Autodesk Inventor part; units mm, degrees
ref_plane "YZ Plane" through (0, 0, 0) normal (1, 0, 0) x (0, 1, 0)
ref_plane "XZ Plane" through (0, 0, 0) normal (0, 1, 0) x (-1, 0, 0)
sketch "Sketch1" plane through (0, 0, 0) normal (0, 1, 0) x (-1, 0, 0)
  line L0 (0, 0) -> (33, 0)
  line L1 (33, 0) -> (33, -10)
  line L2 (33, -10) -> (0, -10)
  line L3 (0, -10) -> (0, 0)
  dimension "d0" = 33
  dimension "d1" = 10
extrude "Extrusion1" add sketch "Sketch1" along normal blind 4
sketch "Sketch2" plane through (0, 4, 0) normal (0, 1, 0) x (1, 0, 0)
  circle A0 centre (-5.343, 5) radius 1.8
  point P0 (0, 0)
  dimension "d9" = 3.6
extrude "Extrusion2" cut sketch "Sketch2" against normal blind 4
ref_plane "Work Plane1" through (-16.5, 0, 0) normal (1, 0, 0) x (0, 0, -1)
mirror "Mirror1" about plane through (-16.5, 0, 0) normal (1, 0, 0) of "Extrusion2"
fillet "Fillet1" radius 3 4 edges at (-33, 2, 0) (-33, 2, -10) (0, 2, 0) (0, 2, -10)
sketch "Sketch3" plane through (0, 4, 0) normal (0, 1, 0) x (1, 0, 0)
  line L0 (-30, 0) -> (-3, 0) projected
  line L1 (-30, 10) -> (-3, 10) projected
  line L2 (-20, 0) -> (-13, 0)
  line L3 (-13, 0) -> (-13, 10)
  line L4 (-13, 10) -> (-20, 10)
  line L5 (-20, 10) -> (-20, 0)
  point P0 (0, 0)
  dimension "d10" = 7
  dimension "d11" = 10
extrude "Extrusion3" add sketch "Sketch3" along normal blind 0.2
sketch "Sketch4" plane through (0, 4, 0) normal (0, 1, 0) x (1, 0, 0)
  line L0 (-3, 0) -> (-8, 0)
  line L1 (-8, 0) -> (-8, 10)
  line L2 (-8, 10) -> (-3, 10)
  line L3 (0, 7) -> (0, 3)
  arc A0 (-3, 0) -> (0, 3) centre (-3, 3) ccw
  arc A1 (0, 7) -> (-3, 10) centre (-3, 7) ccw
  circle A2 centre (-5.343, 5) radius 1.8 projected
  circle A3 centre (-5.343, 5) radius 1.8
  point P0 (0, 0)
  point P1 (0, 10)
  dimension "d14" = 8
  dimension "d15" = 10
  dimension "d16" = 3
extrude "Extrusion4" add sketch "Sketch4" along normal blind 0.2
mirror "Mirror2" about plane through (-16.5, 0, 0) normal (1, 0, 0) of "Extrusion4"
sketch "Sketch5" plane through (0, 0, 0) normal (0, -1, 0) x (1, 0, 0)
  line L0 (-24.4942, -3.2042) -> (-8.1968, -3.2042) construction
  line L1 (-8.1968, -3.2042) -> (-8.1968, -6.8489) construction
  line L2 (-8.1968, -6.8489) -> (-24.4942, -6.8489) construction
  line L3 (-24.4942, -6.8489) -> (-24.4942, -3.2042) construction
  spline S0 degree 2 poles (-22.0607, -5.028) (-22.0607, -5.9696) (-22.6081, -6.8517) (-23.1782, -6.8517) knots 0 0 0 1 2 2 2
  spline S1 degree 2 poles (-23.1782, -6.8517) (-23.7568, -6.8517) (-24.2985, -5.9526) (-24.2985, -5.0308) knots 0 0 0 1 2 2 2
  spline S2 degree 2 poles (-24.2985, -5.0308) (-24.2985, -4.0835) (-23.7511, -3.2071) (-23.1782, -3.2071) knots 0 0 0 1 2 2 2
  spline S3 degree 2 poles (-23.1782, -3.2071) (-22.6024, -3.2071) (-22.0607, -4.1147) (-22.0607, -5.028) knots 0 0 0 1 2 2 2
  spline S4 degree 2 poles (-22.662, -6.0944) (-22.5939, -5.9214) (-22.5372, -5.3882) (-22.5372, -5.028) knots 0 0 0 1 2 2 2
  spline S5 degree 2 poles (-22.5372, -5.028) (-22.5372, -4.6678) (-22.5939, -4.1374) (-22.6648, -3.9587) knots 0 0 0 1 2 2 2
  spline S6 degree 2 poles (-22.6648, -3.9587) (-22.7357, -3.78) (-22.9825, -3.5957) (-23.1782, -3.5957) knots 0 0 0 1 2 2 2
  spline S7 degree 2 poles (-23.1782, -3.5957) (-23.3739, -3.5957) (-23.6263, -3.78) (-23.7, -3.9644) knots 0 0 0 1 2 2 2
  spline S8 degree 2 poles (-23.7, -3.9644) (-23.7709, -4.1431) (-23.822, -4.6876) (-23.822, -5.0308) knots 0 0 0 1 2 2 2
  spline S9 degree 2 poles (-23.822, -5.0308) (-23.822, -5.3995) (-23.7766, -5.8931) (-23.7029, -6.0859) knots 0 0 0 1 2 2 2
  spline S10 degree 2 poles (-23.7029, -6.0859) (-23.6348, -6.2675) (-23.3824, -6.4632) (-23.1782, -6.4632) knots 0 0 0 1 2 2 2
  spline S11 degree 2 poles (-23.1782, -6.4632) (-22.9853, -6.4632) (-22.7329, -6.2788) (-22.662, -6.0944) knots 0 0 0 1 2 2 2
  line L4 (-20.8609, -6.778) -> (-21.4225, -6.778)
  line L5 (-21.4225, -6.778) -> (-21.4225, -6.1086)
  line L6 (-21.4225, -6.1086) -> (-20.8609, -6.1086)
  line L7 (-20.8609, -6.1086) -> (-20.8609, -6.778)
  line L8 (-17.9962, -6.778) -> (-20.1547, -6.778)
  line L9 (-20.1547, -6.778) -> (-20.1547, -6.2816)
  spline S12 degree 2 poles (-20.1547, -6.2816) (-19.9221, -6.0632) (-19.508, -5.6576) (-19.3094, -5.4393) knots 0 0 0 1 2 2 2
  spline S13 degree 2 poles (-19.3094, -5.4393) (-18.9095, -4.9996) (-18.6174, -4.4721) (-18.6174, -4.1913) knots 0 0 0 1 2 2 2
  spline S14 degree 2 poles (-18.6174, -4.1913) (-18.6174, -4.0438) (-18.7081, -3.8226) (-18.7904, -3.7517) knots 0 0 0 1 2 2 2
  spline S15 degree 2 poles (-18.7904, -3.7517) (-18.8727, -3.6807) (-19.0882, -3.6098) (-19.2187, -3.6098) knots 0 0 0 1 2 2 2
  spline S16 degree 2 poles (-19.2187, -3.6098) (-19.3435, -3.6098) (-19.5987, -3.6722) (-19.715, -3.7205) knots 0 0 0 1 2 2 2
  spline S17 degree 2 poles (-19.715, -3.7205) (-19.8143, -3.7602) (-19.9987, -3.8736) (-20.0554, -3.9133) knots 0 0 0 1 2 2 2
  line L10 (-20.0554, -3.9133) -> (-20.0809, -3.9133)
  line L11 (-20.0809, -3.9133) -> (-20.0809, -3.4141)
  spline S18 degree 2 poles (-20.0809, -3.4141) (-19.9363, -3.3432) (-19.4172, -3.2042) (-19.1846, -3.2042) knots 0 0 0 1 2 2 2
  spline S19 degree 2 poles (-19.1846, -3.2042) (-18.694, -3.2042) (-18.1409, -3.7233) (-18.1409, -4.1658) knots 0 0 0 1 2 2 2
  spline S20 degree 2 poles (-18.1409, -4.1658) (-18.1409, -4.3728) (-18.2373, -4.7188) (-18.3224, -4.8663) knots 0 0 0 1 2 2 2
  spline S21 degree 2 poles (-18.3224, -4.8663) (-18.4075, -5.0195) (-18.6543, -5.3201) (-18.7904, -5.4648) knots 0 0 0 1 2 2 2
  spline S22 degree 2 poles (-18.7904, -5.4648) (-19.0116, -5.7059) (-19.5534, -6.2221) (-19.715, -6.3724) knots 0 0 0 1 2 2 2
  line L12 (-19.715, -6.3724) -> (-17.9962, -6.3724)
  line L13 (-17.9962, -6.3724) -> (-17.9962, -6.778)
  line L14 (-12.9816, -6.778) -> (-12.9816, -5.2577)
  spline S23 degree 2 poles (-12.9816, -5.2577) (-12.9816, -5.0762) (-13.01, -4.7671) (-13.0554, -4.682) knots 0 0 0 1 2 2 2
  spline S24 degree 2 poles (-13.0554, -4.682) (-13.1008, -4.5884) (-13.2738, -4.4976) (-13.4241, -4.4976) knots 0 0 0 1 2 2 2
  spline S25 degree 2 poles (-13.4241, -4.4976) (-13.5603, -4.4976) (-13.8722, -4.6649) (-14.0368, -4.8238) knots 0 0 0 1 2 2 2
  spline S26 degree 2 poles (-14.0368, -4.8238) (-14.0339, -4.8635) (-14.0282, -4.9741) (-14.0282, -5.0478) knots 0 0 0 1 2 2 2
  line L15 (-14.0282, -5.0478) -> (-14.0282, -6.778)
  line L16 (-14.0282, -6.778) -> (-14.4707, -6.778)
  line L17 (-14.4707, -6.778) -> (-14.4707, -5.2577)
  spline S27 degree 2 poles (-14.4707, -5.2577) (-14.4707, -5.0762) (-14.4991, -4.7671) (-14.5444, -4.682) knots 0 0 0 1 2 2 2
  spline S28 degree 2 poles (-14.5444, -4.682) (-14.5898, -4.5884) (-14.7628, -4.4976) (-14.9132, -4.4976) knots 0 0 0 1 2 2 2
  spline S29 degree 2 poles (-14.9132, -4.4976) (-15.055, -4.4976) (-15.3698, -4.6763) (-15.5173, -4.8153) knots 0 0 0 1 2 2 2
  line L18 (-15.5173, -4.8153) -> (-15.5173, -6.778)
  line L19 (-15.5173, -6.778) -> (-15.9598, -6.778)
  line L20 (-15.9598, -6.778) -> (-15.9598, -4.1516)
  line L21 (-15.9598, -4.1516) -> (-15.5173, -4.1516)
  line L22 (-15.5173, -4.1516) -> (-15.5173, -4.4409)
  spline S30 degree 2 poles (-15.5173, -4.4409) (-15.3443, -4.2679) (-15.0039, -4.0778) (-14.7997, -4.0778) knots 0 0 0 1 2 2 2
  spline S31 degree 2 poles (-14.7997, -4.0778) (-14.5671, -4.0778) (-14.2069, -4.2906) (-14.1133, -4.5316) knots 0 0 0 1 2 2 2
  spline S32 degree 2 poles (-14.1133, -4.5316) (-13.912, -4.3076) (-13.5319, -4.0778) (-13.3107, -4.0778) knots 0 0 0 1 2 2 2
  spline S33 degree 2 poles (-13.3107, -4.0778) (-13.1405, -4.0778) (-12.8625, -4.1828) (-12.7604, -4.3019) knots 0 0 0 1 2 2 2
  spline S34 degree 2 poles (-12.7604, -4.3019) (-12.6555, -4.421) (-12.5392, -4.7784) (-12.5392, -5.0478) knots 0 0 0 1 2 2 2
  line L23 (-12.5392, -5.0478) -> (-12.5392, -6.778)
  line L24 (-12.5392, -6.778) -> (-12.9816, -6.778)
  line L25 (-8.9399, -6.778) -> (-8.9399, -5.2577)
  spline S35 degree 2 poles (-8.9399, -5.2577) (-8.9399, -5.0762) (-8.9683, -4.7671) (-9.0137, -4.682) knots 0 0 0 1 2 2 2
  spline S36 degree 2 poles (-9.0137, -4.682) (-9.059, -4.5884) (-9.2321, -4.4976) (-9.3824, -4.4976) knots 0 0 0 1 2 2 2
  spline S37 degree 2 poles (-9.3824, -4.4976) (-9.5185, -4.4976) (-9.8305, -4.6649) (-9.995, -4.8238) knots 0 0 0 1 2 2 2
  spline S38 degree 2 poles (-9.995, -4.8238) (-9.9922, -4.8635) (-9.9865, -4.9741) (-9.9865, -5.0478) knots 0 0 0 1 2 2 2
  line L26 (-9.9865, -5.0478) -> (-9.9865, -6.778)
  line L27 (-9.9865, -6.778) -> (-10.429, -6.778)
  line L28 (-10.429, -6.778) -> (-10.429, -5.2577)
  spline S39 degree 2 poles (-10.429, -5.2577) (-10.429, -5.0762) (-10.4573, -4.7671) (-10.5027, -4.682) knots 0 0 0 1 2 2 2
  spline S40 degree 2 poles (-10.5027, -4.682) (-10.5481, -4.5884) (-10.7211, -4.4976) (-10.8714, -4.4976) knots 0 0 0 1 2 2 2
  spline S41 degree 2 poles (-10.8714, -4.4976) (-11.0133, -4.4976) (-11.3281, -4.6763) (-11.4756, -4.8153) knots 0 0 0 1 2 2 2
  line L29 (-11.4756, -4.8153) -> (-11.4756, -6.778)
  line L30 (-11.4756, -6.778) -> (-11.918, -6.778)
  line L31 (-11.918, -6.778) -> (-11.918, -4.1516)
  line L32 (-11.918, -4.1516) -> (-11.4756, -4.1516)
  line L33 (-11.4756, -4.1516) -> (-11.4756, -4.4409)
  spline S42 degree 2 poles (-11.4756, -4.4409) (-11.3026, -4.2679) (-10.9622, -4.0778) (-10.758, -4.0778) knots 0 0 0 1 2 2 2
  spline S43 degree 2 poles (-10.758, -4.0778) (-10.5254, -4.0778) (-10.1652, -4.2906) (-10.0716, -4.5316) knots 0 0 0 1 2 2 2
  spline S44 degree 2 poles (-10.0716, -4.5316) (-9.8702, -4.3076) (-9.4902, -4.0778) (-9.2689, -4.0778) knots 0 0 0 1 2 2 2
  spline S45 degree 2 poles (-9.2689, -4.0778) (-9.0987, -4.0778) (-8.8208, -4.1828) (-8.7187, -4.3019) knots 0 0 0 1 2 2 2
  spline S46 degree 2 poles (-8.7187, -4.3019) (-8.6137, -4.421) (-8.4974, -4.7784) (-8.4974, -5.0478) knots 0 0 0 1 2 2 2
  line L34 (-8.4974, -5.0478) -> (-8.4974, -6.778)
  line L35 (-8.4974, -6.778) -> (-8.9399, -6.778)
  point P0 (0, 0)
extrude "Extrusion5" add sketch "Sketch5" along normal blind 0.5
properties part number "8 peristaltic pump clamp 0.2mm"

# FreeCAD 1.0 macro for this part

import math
import FreeCAD as App
import Part
import Sketcher
Q = App.Units.Quantity


def edges_at(feature, points):
    """Names of the edges that pass closest to the given points."""
    edges = feature.Shape.Edges
    near = lambda p: min(range(len(edges)), key=lambda i: edges[i].distToShape(Part.Vertex(*p))[0])
    return sorted({f"Edge{near(p) + 1}" for p in points})

doc = App.newDocument("Part")
body = doc.addObject("PartDesign::Body", "Body")

sketch1 = body.newObject("Sketcher::SketchObject", "Sketch")
sketch1.AttachmentSupport = (doc.getObject("XZ_Plane"), [""])
sketch1.MapMode = "FlatFace"
sketch1.addGeometry([
    Part.LineSegment(App.Vector(-33, 0, 0), App.Vector(0, 0, 0)),
    Part.LineSegment(App.Vector(0, 0, 0), App.Vector(0, -10, 0)),
    Part.LineSegment(App.Vector(0, -10, 0), App.Vector(-33, -10, 0)),
    Part.LineSegment(App.Vector(-33, -10, 0), App.Vector(-33, 0, 0)),
], False)
sketch1.addConstraint([
    Sketcher.Constraint("Coincident", 0, 2, 1, 1),
    Sketcher.Constraint("Coincident", 1, 2, 2, 1),
    Sketcher.Constraint("Coincident", 2, 2, 3, 1),
    Sketcher.Constraint("Coincident", 3, 2, 0, 1),
    Sketcher.Constraint("Horizontal", 0),
    Sketcher.Constraint("Vertical", 1),
    Sketcher.Constraint("Horizontal", 2),
    Sketcher.Constraint("Vertical", 3),
    Sketcher.Constraint("Coincident", 0, 2, -1, 1),
    Sketcher.Constraint("DistanceX", 0, 1, 0, 2, Q("33 mm")),
    Sketcher.Constraint("DistanceY", 1, 2, 1, 1, Q("10 mm")),
])
pad1 = body.newObject("PartDesign::Pad", "Pad")
pad1.Profile = sketch1
pad1.Length = 4
pad1.Reversed = True

sketch2 = body.newObject("Sketcher::SketchObject", "Sketch001")
sketch2.AttachmentSupport = (doc.getObject("XZ_Plane"), [""])
sketch2.MapMode = "FlatFace"
sketch2.AttachmentOffset = App.Placement(App.Vector(0, 0, -4), App.Rotation())
sketch2.addGeometry(Part.Circle(App.Vector(-5.3, -5, 0), App.Vector(0, 0, 1), 1.8), False)
sketch2.addConstraint([
    Sketcher.Constraint("Diameter", 0, Q("3.6 mm")),
    Sketcher.Constraint("DistanceY", 0, 3, -1, 1, Q("5 mm")),
    Sketcher.Constraint("DistanceX", 0, 3, -1, 1, Q("5.343 mm")),
])
pocket1 = body.newObject("PartDesign::Pocket", "Pocket")
pocket1.Profile = sketch2
pocket1.Length = 4
pocket1.Reversed = True
doc.recompute()

datumplane = body.newObject("PartDesign::Plane", "DatumPlane")
datumplane.AttachmentSupport = (doc.getObject("YZ_Plane"), [""])
datumplane.MapMode = "FlatFace"
datumplane.AttachmentOffset = App.Placement(App.Vector(0, 0, -16.5), App.Rotation())
mirrored = body.newObject("PartDesign::Mirrored", "Mirrored")
mirrored.Originals = [pocket1]
mirrored.MirrorPlane = (datumplane, [""])
body.Tip = mirrored
doc.recompute()

fillet = body.newObject("PartDesign::Fillet", "Fillet")
fillet.Base = (mirrored, edges_at(mirrored, [
    (-33, 2, 0),
    (-33, 2, -10),
    (0, 2, 0),
    (0, 2, -10),
]))
fillet.Radius = 3

sketch3 = body.newObject("Sketcher::SketchObject", "Sketch002")
sketch3.AttachmentSupport = (doc.getObject("XZ_Plane"), [""])
sketch3.MapMode = "FlatFace"
sketch3.AttachmentOffset = App.Placement(App.Vector(0, 0, -4), App.Rotation())
sketch3.addGeometry([
    Part.LineSegment(App.Vector(-20, -10, 0), App.Vector(-20, 0, 0)),
    Part.LineSegment(App.Vector(-20, 0, 0), App.Vector(-13, 0, 0)),
    Part.LineSegment(App.Vector(-13, 0, 0), App.Vector(-13, -10, 0)),
    Part.LineSegment(App.Vector(-13, -10, 0), App.Vector(-20, -10, 0)),
], False)
sketch3.addConstraint([
    Sketcher.Constraint("Coincident", 0, 2, 1, 1),
    Sketcher.Constraint("Coincident", 1, 2, 2, 1),
    Sketcher.Constraint("Coincident", 2, 2, 3, 1),
    Sketcher.Constraint("Coincident", 3, 2, 0, 1),
    Sketcher.Constraint("Vertical", 0),
    Sketcher.Constraint("Horizontal", 1),
    Sketcher.Constraint("Vertical", 2),
    Sketcher.Constraint("Horizontal", 3),
    Sketcher.Constraint("PointOnObject", 0, 2, -1),
    Sketcher.Constraint("DistanceX", 1, 1, 1, 2, Q("7 mm")),
    Sketcher.Constraint("DistanceY", 0, 1, 0, 2, Q("10 mm")),
    Sketcher.Constraint("DistanceX", 0, 2, -1, 1, Q("20 mm")),
])
pad2 = body.newObject("PartDesign::Pad", "Pad001")
pad2.Profile = sketch3
pad2.Length = 0.2
pad2.Reversed = True

sketch4 = body.newObject("Sketcher::SketchObject", "Sketch003")
sketch4.AttachmentSupport = (doc.getObject("XZ_Plane"), [""])
sketch4.MapMode = "FlatFace"
sketch4.AttachmentOffset = App.Placement(App.Vector(0, 0, -4), App.Rotation())
sketch4.addGeometry([
    Part.LineSegment(App.Vector(-8, 0, 0), App.Vector(-3, 0, 0)),
    Part.ArcOfCircle(Part.Circle(App.Vector(-3, -3, 0), App.Vector(0, 0, 1), 3), math.radians(0), math.radians(90)),
    Part.LineSegment(App.Vector(0, -3, 0), App.Vector(0, -7, 0)),
    Part.ArcOfCircle(Part.Circle(App.Vector(-3, -7, 0), App.Vector(0, 0, 1), 3), math.radians(-90), math.radians(0)),
    Part.LineSegment(App.Vector(-3, -10, 0), App.Vector(-8, -10, 0)),
    Part.LineSegment(App.Vector(-8, -10, 0), App.Vector(-8, 0, 0)),
    Part.Circle(App.Vector(-5.3, -5, 0), App.Vector(0, 0, 1), 1.8),
], False)
sketch4.addConstraint([
    Sketcher.Constraint("Tangent", 0, 2, 1, 2),
    Sketcher.Constraint("Tangent", 1, 1, 2, 1),
    Sketcher.Constraint("Tangent", 2, 2, 3, 2),
    Sketcher.Constraint("Tangent", 3, 1, 4, 1),
    Sketcher.Constraint("Coincident", 4, 2, 5, 1),
    Sketcher.Constraint("Coincident", 5, 2, 0, 1),
    Sketcher.Constraint("Horizontal", 0),
    Sketcher.Constraint("Vertical", 2),
    Sketcher.Constraint("Horizontal", 4),
    Sketcher.Constraint("Vertical", 5),
    Sketcher.Constraint("Equal", 1, 3),
    Sketcher.Constraint("PointOnObject", 0, 2, -1),
    Sketcher.Constraint("PointOnObject", 1, 1, -2),
    Sketcher.Constraint("Radius", 1, Q("3 mm")),
    Sketcher.Constraint("DistanceY", 5, 1, 5, 2, Q("10 mm")),
    Sketcher.Constraint("DistanceX", 4, 2, -1, 1, Q("8 mm")),
    Sketcher.Constraint("Diameter", 6, Q("3.6 mm")),
    Sketcher.Constraint("DistanceY", 6, 3, -1, 1, Q("5 mm")),
    Sketcher.Constraint("DistanceX", 6, 3, -1, 1, Q("5.343 mm")),
])
pad3 = body.newObject("PartDesign::Pad", "Pad002")
pad3.Profile = sketch4
pad3.Length = 0.2
pad3.Reversed = True
doc.recompute()

datumplane2 = body.newObject("PartDesign::Plane", "DatumPlane001")
datumplane2.AttachmentSupport = (doc.getObject("YZ_Plane"), [""])
datumplane2.MapMode = "FlatFace"
datumplane2.AttachmentOffset = App.Placement(App.Vector(0, 0, -16.5), App.Rotation())
mirrored2 = body.newObject("PartDesign::Mirrored", "Mirrored001")
mirrored2.Originals = [pad3]
mirrored2.MirrorPlane = (datumplane2, [""])
body.Tip = mirrored2

sketch5 = body.newObject("Sketcher::SketchObject", "Sketch004")
sketch5.AttachmentSupport = (doc.getObject("XZ_Plane"), [""])
sketch5.MapMode = "FlatFace"
sketch5.addGeometry([
    Part.BSplineCurve([App.Vector(-22.0607, -5.028, 0), App.Vector(-22.0607, -5.9696, 0), App.Vector(-22.6081, -6.8517, 0), App.Vector(-23.1782, -6.8517, 0)], [3, 1, 3], [0, 1, 2], False, 2, [1, 1, 1, 1], False),
    Part.BSplineCurve([App.Vector(-23.1782, -3.2071, 0), App.Vector(-22.6024, -3.2071, 0), App.Vector(-22.0607, -4.1147, 0), App.Vector(-22.0607, -5.028, 0)], [3, 1, 3], [0, 1, 2], False, 2, [1, 1, 1, 1], False),
    Part.BSplineCurve([App.Vector(-24.2985, -5.0308, 0), App.Vector(-24.2985, -4.0835, 0), App.Vector(-23.7511, -3.2071, 0), App.Vector(-23.1782, -3.2071, 0)], [3, 1, 3], [0, 1, 2], False, 2, [1, 1, 1, 1], False),
    Part.BSplineCurve([App.Vector(-23.1782, -6.8517, 0), App.Vector(-23.7568, -6.8517, 0), App.Vector(-24.2985, -5.9526, 0), App.Vector(-24.2985, -5.0308, 0)], [3, 1, 3], [0, 1, 2], False, 2, [1, 1, 1, 1], False),
    Part.BSplineCurve([App.Vector(-22.662, -6.0944, 0), App.Vector(-22.5939, -5.9214, 0), App.Vector(-22.5372, -5.3882, 0), App.Vector(-22.5372, -5.028, 0)], [3, 1, 3], [0, 1, 2], False, 2, [1, 1, 1, 1], False),
    Part.BSplineCurve([App.Vector(-23.1782, -6.4632, 0), App.Vector(-22.9853, -6.4632, 0), App.Vector(-22.7329, -6.2788, 0), App.Vector(-22.662, -6.0944, 0)], [3, 1, 3], [0, 1, 2], False, 2, [1, 1, 1, 1], False),
    Part.BSplineCurve([App.Vector(-23.7029, -6.0859, 0), App.Vector(-23.6348, -6.2675, 0), App.Vector(-23.3824, -6.4632, 0), App.Vector(-23.1782, -6.4632, 0)], [3, 1, 3], [0, 1, 2], False, 2, [1, 1, 1, 1], False),
    Part.BSplineCurve([App.Vector(-23.822, -5.0308, 0), App.Vector(-23.822, -5.3995, 0), App.Vector(-23.7766, -5.8931, 0), App.Vector(-23.7029, -6.0859, 0)], [3, 1, 3], [0, 1, 2], False, 2, [1, 1, 1, 1], False),
    Part.BSplineCurve([App.Vector(-23.7, -3.9644, 0), App.Vector(-23.7709, -4.1431, 0), App.Vector(-23.822, -4.6876, 0), App.Vector(-23.822, -5.0308, 0)], [3, 1, 3], [0, 1, 2], False, 2, [1, 1, 1, 1], False),
    Part.BSplineCurve([App.Vector(-23.1782, -3.5957, 0), App.Vector(-23.3739, -3.5957, 0), App.Vector(-23.6263, -3.78, 0), App.Vector(-23.7, -3.9644, 0)], [3, 1, 3], [0, 1, 2], False, 2, [1, 1, 1, 1], False),
    Part.BSplineCurve([App.Vector(-22.6648, -3.9587, 0), App.Vector(-22.7357, -3.78, 0), App.Vector(-22.9825, -3.5957, 0), App.Vector(-23.1782, -3.5957, 0)], [3, 1, 3], [0, 1, 2], False, 2, [1, 1, 1, 1], False),
    Part.BSplineCurve([App.Vector(-22.5372, -5.028, 0), App.Vector(-22.5372, -4.6678, 0), App.Vector(-22.5939, -4.1374, 0), App.Vector(-22.6648, -3.9587, 0)], [3, 1, 3], [0, 1, 2], False, 2, [1, 1, 1, 1], False),
    Part.LineSegment(App.Vector(-21.4225, -6.778, 0), App.Vector(-20.8609, -6.778, 0)),
    Part.LineSegment(App.Vector(-20.8609, -6.778, 0), App.Vector(-20.8609, -6.1086, 0)),
    Part.LineSegment(App.Vector(-20.8609, -6.1086, 0), App.Vector(-21.4225, -6.1086, 0)),
    Part.LineSegment(App.Vector(-21.4225, -6.1086, 0), App.Vector(-21.4225, -6.778, 0)),
    Part.LineSegment(App.Vector(-20.1547, -6.778, 0), App.Vector(-17.9962, -6.778, 0)),
    Part.LineSegment(App.Vector(-17.9962, -6.778, 0), App.Vector(-17.9962, -6.3724, 0)),
    Part.LineSegment(App.Vector(-17.9962, -6.3724, 0), App.Vector(-19.715, -6.3724, 0)),
    Part.BSplineCurve([App.Vector(-18.7904, -5.4648, 0), App.Vector(-19.0116, -5.7059, 0), App.Vector(-19.5534, -6.2221, 0), App.Vector(-19.715, -6.3724, 0)], [3, 1, 3], [0, 1, 2], False, 2, [1, 1, 1, 1], False),
    Part.BSplineCurve([App.Vector(-18.3224, -4.8663, 0), App.Vector(-18.4075, -5.0195, 0), App.Vector(-18.6543, -5.3201, 0), App.Vector(-18.7904, -5.4648, 0)], [3, 1, 3], [0, 1, 2], False, 2, [1, 1, 1, 1], False),
    Part.BSplineCurve([App.Vector(-18.1409, -4.1658, 0), App.Vector(-18.1409, -4.3728, 0), App.Vector(-18.2373, -4.7188, 0), App.Vector(-18.3224, -4.8663, 0)], [3, 1, 3], [0, 1, 2], False, 2, [1, 1, 1, 1], False),
    Part.BSplineCurve([App.Vector(-19.1846, -3.2042, 0), App.Vector(-18.694, -3.2042, 0), App.Vector(-18.1409, -3.7233, 0), App.Vector(-18.1409, -4.1658, 0)], [3, 1, 3], [0, 1, 2], False, 2, [1, 1, 1, 1], False),
    Part.BSplineCurve([App.Vector(-20.0809, -3.4141, 0), App.Vector(-19.9363, -3.3432, 0), App.Vector(-19.4172, -3.2042, 0), App.Vector(-19.1846, -3.2042, 0)], [3, 1, 3], [0, 1, 2], False, 2, [1, 1, 1, 1], False),
    Part.LineSegment(App.Vector(-20.0809, -3.4141, 0), App.Vector(-20.0809, -3.9133, 0)),
    Part.LineSegment(App.Vector(-20.0809, -3.9133, 0), App.Vector(-20.0554, -3.9133, 0)),
    Part.BSplineCurve([App.Vector(-19.715, -3.7205, 0), App.Vector(-19.8143, -3.7602, 0), App.Vector(-19.9987, -3.8736, 0), App.Vector(-20.0554, -3.9133, 0)], [3, 1, 3], [0, 1, 2], False, 2, [1, 1, 1, 1], False),
    Part.BSplineCurve([App.Vector(-19.2187, -3.6098, 0), App.Vector(-19.3435, -3.6098, 0), App.Vector(-19.5987, -3.6722, 0), App.Vector(-19.715, -3.7205, 0)], [3, 1, 3], [0, 1, 2], False, 2, [1, 1, 1, 1], False),
    Part.BSplineCurve([App.Vector(-18.7904, -3.7517, 0), App.Vector(-18.8727, -3.6807, 0), App.Vector(-19.0882, -3.6098, 0), App.Vector(-19.2187, -3.6098, 0)], [3, 1, 3], [0, 1, 2], False, 2, [1, 1, 1, 1], False),
    Part.BSplineCurve([App.Vector(-18.6174, -4.1913, 0), App.Vector(-18.6174, -4.0438, 0), App.Vector(-18.7081, -3.8226, 0), App.Vector(-18.7904, -3.7517, 0)], [3, 1, 3], [0, 1, 2], False, 2, [1, 1, 1, 1], False),
    Part.BSplineCurve([App.Vector(-19.3094, -5.4393, 0), App.Vector(-18.9095, -4.9996, 0), App.Vector(-18.6174, -4.4721, 0), App.Vector(-18.6174, -4.1913, 0)], [3, 1, 3], [0, 1, 2], False, 2, [1, 1, 1, 1], False),
    Part.BSplineCurve([App.Vector(-20.1547, -6.2816, 0), App.Vector(-19.9221, -6.0632, 0), App.Vector(-19.508, -5.6576, 0), App.Vector(-19.3094, -5.4393, 0)], [3, 1, 3], [0, 1, 2], False, 2, [1, 1, 1, 1], False),
    Part.LineSegment(App.Vector(-20.1547, -6.2816, 0), App.Vector(-20.1547, -6.778, 0)),
    Part.LineSegment(App.Vector(-12.9816, -5.2577, 0), App.Vector(-12.9816, -6.778, 0)),
    Part.LineSegment(App.Vector(-12.9816, -6.778, 0), App.Vector(-12.5392, -6.778, 0)),
    Part.LineSegment(App.Vector(-12.5392, -6.778, 0), App.Vector(-12.5392, -5.0478, 0)),
    Part.BSplineCurve([App.Vector(-12.7604, -4.3019, 0), App.Vector(-12.6555, -4.421, 0), App.Vector(-12.5392, -4.7784, 0), App.Vector(-12.5392, -5.0478, 0)], [3, 1, 3], [0, 1, 2], False, 2, [1, 1, 1, 1], False),
    Part.BSplineCurve([App.Vector(-13.3107, -4.0778, 0), App.Vector(-13.1405, -4.0778, 0), App.Vector(-12.8625, -4.1828, 0), App.Vector(-12.7604, -4.3019, 0)], [3, 1, 3], [0, 1, 2], False, 2, [1, 1, 1, 1], False),
    Part.BSplineCurve([App.Vector(-14.1133, -4.5316, 0), App.Vector(-13.912, -4.3076, 0), App.Vector(-13.5319, -4.0778, 0), App.Vector(-13.3107, -4.0778, 0)], [3, 1, 3], [0, 1, 2], False, 2, [1, 1, 1, 1], False),
    Part.BSplineCurve([App.Vector(-14.7997, -4.0778, 0), App.Vector(-14.5671, -4.0778, 0), App.Vector(-14.2069, -4.2906, 0), App.Vector(-14.1133, -4.5316, 0)], [3, 1, 3], [0, 1, 2], False, 2, [1, 1, 1, 1], False),
    Part.BSplineCurve([App.Vector(-15.5173, -4.4409, 0), App.Vector(-15.3443, -4.2679, 0), App.Vector(-15.0039, -4.0778, 0), App.Vector(-14.7997, -4.0778, 0)], [3, 1, 3], [0, 1, 2], False, 2, [1, 1, 1, 1], False),
    Part.LineSegment(App.Vector(-15.5173, -4.4409, 0), App.Vector(-15.5173, -4.1516, 0)),
    Part.LineSegment(App.Vector(-15.5173, -4.1516, 0), App.Vector(-15.9598, -4.1516, 0)),
    Part.LineSegment(App.Vector(-15.9598, -4.1516, 0), App.Vector(-15.9598, -6.778, 0)),
    Part.LineSegment(App.Vector(-15.9598, -6.778, 0), App.Vector(-15.5173, -6.778, 0)),
    Part.LineSegment(App.Vector(-15.5173, -6.778, 0), App.Vector(-15.5173, -4.8153, 0)),
    Part.BSplineCurve([App.Vector(-14.9132, -4.4976, 0), App.Vector(-15.055, -4.4976, 0), App.Vector(-15.3698, -4.6763, 0), App.Vector(-15.5173, -4.8153, 0)], [3, 1, 3], [0, 1, 2], False, 2, [1, 1, 1, 1], False),
    Part.BSplineCurve([App.Vector(-14.5444, -4.682, 0), App.Vector(-14.5898, -4.5884, 0), App.Vector(-14.7628, -4.4976, 0), App.Vector(-14.9132, -4.4976, 0)], [3, 1, 3], [0, 1, 2], False, 2, [1, 1, 1, 1], False),
    Part.BSplineCurve([App.Vector(-14.4707, -5.2577, 0), App.Vector(-14.4707, -5.0762, 0), App.Vector(-14.4991, -4.7671, 0), App.Vector(-14.5444, -4.682, 0)], [3, 1, 3], [0, 1, 2], False, 2, [1, 1, 1, 1], False),
    Part.LineSegment(App.Vector(-14.4707, -5.2577, 0), App.Vector(-14.4707, -6.778, 0)),
    Part.LineSegment(App.Vector(-14.4707, -6.778, 0), App.Vector(-14.0282, -6.778, 0)),
    Part.LineSegment(App.Vector(-14.0282, -6.778, 0), App.Vector(-14.0282, -5.0478, 0)),
    Part.BSplineCurve([App.Vector(-14.0368, -4.8238, 0), App.Vector(-14.0339, -4.8635, 0), App.Vector(-14.0282, -4.9741, 0), App.Vector(-14.0282, -5.0478, 0)], [3, 1, 3], [0, 1, 2], False, 2, [1, 1, 1, 1], False),
    Part.BSplineCurve([App.Vector(-13.4241, -4.4976, 0), App.Vector(-13.5603, -4.4976, 0), App.Vector(-13.8722, -4.6649, 0), App.Vector(-14.0368, -4.8238, 0)], [3, 1, 3], [0, 1, 2], False, 2, [1, 1, 1, 1], False),
    Part.BSplineCurve([App.Vector(-13.0554, -4.682, 0), App.Vector(-13.1008, -4.5884, 0), App.Vector(-13.2738, -4.4976, 0), App.Vector(-13.4241, -4.4976, 0)], [3, 1, 3], [0, 1, 2], False, 2, [1, 1, 1, 1], False),
    Part.BSplineCurve([App.Vector(-12.9816, -5.2577, 0), App.Vector(-12.9816, -5.0762, 0), App.Vector(-13.01, -4.7671, 0), App.Vector(-13.0554, -4.682, 0)], [3, 1, 3], [0, 1, 2], False, 2, [1, 1, 1, 1], False),
    Part.LineSegment(App.Vector(-8.9399, -5.2577, 0), App.Vector(-8.9399, -6.778, 0)),
    Part.LineSegment(App.Vector(-8.9399, -6.778, 0), App.Vector(-8.4974, -6.778, 0)),
    Part.LineSegment(App.Vector(-8.4974, -6.778, 0), App.Vector(-8.4974, -5.0478, 0)),
    Part.BSplineCurve([App.Vector(-8.7187, -4.3019, 0), App.Vector(-8.6137, -4.421, 0), App.Vector(-8.4974, -4.7784, 0), App.Vector(-8.4974, -5.0478, 0)], [3, 1, 3], [0, 1, 2], False, 2, [1, 1, 1, 1], False),
    Part.BSplineCurve([App.Vector(-9.2689, -4.0778, 0), App.Vector(-9.0987, -4.0778, 0), App.Vector(-8.8208, -4.1828, 0), App.Vector(-8.7187, -4.3019, 0)], [3, 1, 3], [0, 1, 2], False, 2, [1, 1, 1, 1], False),
    Part.BSplineCurve([App.Vector(-10.0716, -4.5316, 0), App.Vector(-9.8702, -4.3076, 0), App.Vector(-9.4902, -4.0778, 0), App.Vector(-9.2689, -4.0778, 0)], [3, 1, 3], [0, 1, 2], False, 2, [1, 1, 1, 1], False),
    Part.BSplineCurve([App.Vector(-10.758, -4.0778, 0), App.Vector(-10.5254, -4.0778, 0), App.Vector(-10.1652, -4.2906, 0), App.Vector(-10.0716, -4.5316, 0)], [3, 1, 3], [0, 1, 2], False, 2, [1, 1, 1, 1], False),
    Part.BSplineCurve([App.Vector(-11.4756, -4.4409, 0), App.Vector(-11.3026, -4.2679, 0), App.Vector(-10.9622, -4.0778, 0), App.Vector(-10.758, -4.0778, 0)], [3, 1, 3], [0, 1, 2], False, 2, [1, 1, 1, 1], False),
    Part.LineSegment(App.Vector(-11.4756, -4.4409, 0), App.Vector(-11.4756, -4.1516, 0)),
    Part.LineSegment(App.Vector(-11.4756, -4.1516, 0), App.Vector(-11.918, -4.1516, 0)),
    Part.LineSegment(App.Vector(-11.918, -4.1516, 0), App.Vector(-11.918, -6.778, 0)),
    Part.LineSegment(App.Vector(-11.918, -6.778, 0), App.Vector(-11.4756, -6.778, 0)),
    Part.LineSegment(App.Vector(-11.4756, -6.778, 0), App.Vector(-11.4756, -4.8153, 0)),
    Part.BSplineCurve([App.Vector(-10.8714, -4.4976, 0), App.Vector(-11.0133, -4.4976, 0), App.Vector(-11.3281, -4.6763, 0), App.Vector(-11.4756, -4.8153, 0)], [3, 1, 3], [0, 1, 2], False, 2, [1, 1, 1, 1], False),
    Part.BSplineCurve([App.Vector(-10.5027, -4.682, 0), App.Vector(-10.5481, -4.5884, 0), App.Vector(-10.7211, -4.4976, 0), App.Vector(-10.8714, -4.4976, 0)], [3, 1, 3], [0, 1, 2], False, 2, [1, 1, 1, 1], False),
    Part.BSplineCurve([App.Vector(-10.429, -5.2577, 0), App.Vector(-10.429, -5.0762, 0), App.Vector(-10.4573, -4.7671, 0), App.Vector(-10.5027, -4.682, 0)], [3, 1, 3], [0, 1, 2], False, 2, [1, 1, 1, 1], False),
    Part.LineSegment(App.Vector(-10.429, -5.2577, 0), App.Vector(-10.429, -6.778, 0)),
    Part.LineSegment(App.Vector(-10.429, -6.778, 0), App.Vector(-9.9865, -6.778, 0)),
    Part.LineSegment(App.Vector(-9.9865, -6.778, 0), App.Vector(-9.9865, -5.0478, 0)),
    Part.BSplineCurve([App.Vector(-9.995, -4.8238, 0), App.Vector(-9.9922, -4.8635, 0), App.Vector(-9.9865, -4.9741, 0), App.Vector(-9.9865, -5.0478, 0)], [3, 1, 3], [0, 1, 2], False, 2, [1, 1, 1, 1], False),
    Part.BSplineCurve([App.Vector(-9.3824, -4.4976, 0), App.Vector(-9.5185, -4.4976, 0), App.Vector(-9.8305, -4.6649, 0), App.Vector(-9.995, -4.8238, 0)], [3, 1, 3], [0, 1, 2], False, 2, [1, 1, 1, 1], False),
    Part.BSplineCurve([App.Vector(-9.0137, -4.682, 0), App.Vector(-9.059, -4.5884, 0), App.Vector(-9.2321, -4.4976, 0), App.Vector(-9.3824, -4.4976, 0)], [3, 1, 3], [0, 1, 2], False, 2, [1, 1, 1, 1], False),
    Part.BSplineCurve([App.Vector(-8.9399, -5.2577, 0), App.Vector(-8.9399, -5.0762, 0), App.Vector(-8.9683, -4.7671, 0), App.Vector(-9.0137, -4.682, 0)], [3, 1, 3], [0, 1, 2], False, 2, [1, 1, 1, 1], False),
], False)
sketch5.addConstraint([
    Sketcher.Constraint("Block", 0),
    Sketcher.Constraint("Block", 1),
    Sketcher.Constraint("Block", 2),
    Sketcher.Constraint("Block", 3),
    Sketcher.Constraint("Block", 4),
    Sketcher.Constraint("Block", 5),
    Sketcher.Constraint("Block", 6),
    Sketcher.Constraint("Block", 7),
    Sketcher.Constraint("Block", 8),
    Sketcher.Constraint("Block", 9),
    Sketcher.Constraint("Block", 10),
    Sketcher.Constraint("Block", 11),
    Sketcher.Constraint("Block", 19),
    Sketcher.Constraint("Block", 20),
    Sketcher.Constraint("Block", 21),
    Sketcher.Constraint("Block", 22),
    Sketcher.Constraint("Block", 23),
    Sketcher.Constraint("Block", 26),
    Sketcher.Constraint("Block", 27),
    Sketcher.Constraint("Block", 28),
    Sketcher.Constraint("Block", 29),
    Sketcher.Constraint("Block", 30),
    Sketcher.Constraint("Block", 31),
    Sketcher.Constraint("Block", 36),
    Sketcher.Constraint("Block", 37),
    Sketcher.Constraint("Block", 38),
    Sketcher.Constraint("Block", 39),
    Sketcher.Constraint("Block", 40),
    Sketcher.Constraint("Block", 46),
    Sketcher.Constraint("Block", 47),
    Sketcher.Constraint("Block", 48),
    Sketcher.Constraint("Block", 52),
    Sketcher.Constraint("Block", 53),
    Sketcher.Constraint("Block", 54),
    Sketcher.Constraint("Block", 55),
    Sketcher.Constraint("Block", 59),
    Sketcher.Constraint("Block", 60),
    Sketcher.Constraint("Block", 61),
    Sketcher.Constraint("Block", 62),
    Sketcher.Constraint("Block", 63),
    Sketcher.Constraint("Block", 69),
    Sketcher.Constraint("Block", 70),
    Sketcher.Constraint("Block", 71),
    Sketcher.Constraint("Block", 75),
    Sketcher.Constraint("Block", 76),
    Sketcher.Constraint("Block", 77),
    Sketcher.Constraint("Block", 78),
    Sketcher.Constraint("Coincident", 12, 2, 13, 1),
    Sketcher.Constraint("Coincident", 13, 2, 14, 1),
    Sketcher.Constraint("Coincident", 14, 2, 15, 1),
    Sketcher.Constraint("Coincident", 15, 2, 12, 1),
    Sketcher.Constraint("Coincident", 16, 2, 17, 1),
    Sketcher.Constraint("Coincident", 17, 2, 18, 1),
    Sketcher.Constraint("Coincident", 18, 2, 19, 2),
    Sketcher.Constraint("Coincident", 23, 1, 24, 1),
    Sketcher.Constraint("Coincident", 24, 2, 25, 1),
    Sketcher.Constraint("Coincident", 25, 2, 26, 2),
    Sketcher.Constraint("Coincident", 31, 1, 32, 1),
    Sketcher.Constraint("Coincident", 32, 2, 16, 1),
    Sketcher.Constraint("Coincident", 33, 2, 34, 1),
    Sketcher.Constraint("Coincident", 34, 2, 35, 1),
    Sketcher.Constraint("Coincident", 35, 2, 36, 2),
    Sketcher.Constraint("Coincident", 40, 1, 41, 1),
    Sketcher.Constraint("Coincident", 41, 2, 42, 1),
    Sketcher.Constraint("Coincident", 42, 2, 43, 1),
    Sketcher.Constraint("Coincident", 43, 2, 44, 1),
    Sketcher.Constraint("Coincident", 44, 2, 45, 1),
    Sketcher.Constraint("Coincident", 45, 2, 46, 2),
    Sketcher.Constraint("Coincident", 48, 1, 49, 1),
    Sketcher.Constraint("Coincident", 49, 2, 50, 1),
    Sketcher.Constraint("Coincident", 50, 2, 51, 1),
    Sketcher.Constraint("Coincident", 51, 2, 52, 2),
    Sketcher.Constraint("Coincident", 55, 1, 33, 1),
    Sketcher.Constraint("Coincident", 56, 2, 57, 1),
    Sketcher.Constraint("Coincident", 57, 2, 58, 1),
    Sketcher.Constraint("Coincident", 58, 2, 59, 2),
    Sketcher.Constraint("Coincident", 63, 1, 64, 1),
    Sketcher.Constraint("Coincident", 64, 2, 65, 1),
    Sketcher.Constraint("Coincident", 65, 2, 66, 1),
    Sketcher.Constraint("Coincident", 66, 2, 67, 1),
    Sketcher.Constraint("Coincident", 67, 2, 68, 1),
    Sketcher.Constraint("Coincident", 68, 2, 69, 2),
    Sketcher.Constraint("Coincident", 71, 1, 72, 1),
    Sketcher.Constraint("Coincident", 72, 2, 73, 1),
    Sketcher.Constraint("Coincident", 73, 2, 74, 1),
    Sketcher.Constraint("Coincident", 74, 2, 75, 2),
    Sketcher.Constraint("Coincident", 78, 1, 56, 1),
    Sketcher.Constraint("Horizontal", 12),
    Sketcher.Constraint("Vertical", 13),
    Sketcher.Constraint("Horizontal", 14),
    Sketcher.Constraint("Vertical", 15),
    Sketcher.Constraint("Horizontal", 16),
    Sketcher.Constraint("Vertical", 17),
    Sketcher.Constraint("Horizontal", 18),
    Sketcher.Constraint("Vertical", 24),
    Sketcher.Constraint("Horizontal", 25),
    Sketcher.Constraint("Vertical", 32),
    Sketcher.Constraint("Vertical", 33),
    Sketcher.Constraint("Horizontal", 34),
    Sketcher.Constraint("Vertical", 35),
    Sketcher.Constraint("Vertical", 41),
    Sketcher.Constraint("Horizontal", 42),
    Sketcher.Constraint("Vertical", 43),
    Sketcher.Constraint("Horizontal", 44),
    Sketcher.Constraint("Vertical", 45),
    Sketcher.Constraint("Vertical", 49),
    Sketcher.Constraint("Horizontal", 50),
    Sketcher.Constraint("Vertical", 51),
    Sketcher.Constraint("Vertical", 56),
    Sketcher.Constraint("Horizontal", 57),
    Sketcher.Constraint("Vertical", 58),
    Sketcher.Constraint("Vertical", 64),
    Sketcher.Constraint("Horizontal", 65),
    Sketcher.Constraint("Vertical", 66),
    Sketcher.Constraint("Horizontal", 67),
    Sketcher.Constraint("Vertical", 68),
    Sketcher.Constraint("Vertical", 72),
    Sketcher.Constraint("Horizontal", 73),
    Sketcher.Constraint("Vertical", 74),
    Sketcher.Constraint("DistanceX", 13, 2, 24, 2, Q("0.78 mm")),
    Sketcher.Constraint("DistanceX", 12, 1, 12, 2, Q("0.5616 mm")),
    Sketcher.Constraint("DistanceX", 16, 1, 16, 2, Q("2.1585 mm")),
    Sketcher.Constraint("DistanceX", 42, 2, 42, 1, Q("0.4425 mm")),
    Sketcher.Constraint("DistanceX", 65, 2, 65, 1, Q("0.4424 mm")),
    Sketcher.Constraint("DistanceY", 13, 1, 13, 2, Q("0.6694 mm")),
    Sketcher.Constraint("DistanceY", 17, 1, 17, 2, Q("0.4056 mm")),
    Sketcher.Constraint("DistanceY", 33, 2, 33, 1, Q("1.5203 mm")),
    Sketcher.Constraint("DistanceY", 41, 1, 41, 2, Q("0.2893 mm")),
    Sketcher.Constraint("DistanceY", 43, 2, 43, 1, Q("2.6264 mm")),
    Sketcher.Constraint("DistanceY", 49, 2, 49, 1, Q("1.5203 mm")),
    Sketcher.Constraint("DistanceY", 56, 2, 56, 1, Q("1.5203 mm")),
    Sketcher.Constraint("DistanceY", 64, 1, 64, 2, Q("0.2893 mm")),
    Sketcher.Constraint("DistanceY", 66, 2, 66, 1, Q("2.6264 mm")),
    Sketcher.Constraint("DistanceY", 72, 2, 72, 1, Q("1.5203 mm")),
    Sketcher.Constraint("DistanceY", 12, 2, -1, 1, Q("6.778 mm")),
])
pad4 = body.newObject("PartDesign::Pad", "Pad003")
pad4.Profile = sketch5
pad4.Length = 0.5

doc.recompute()
